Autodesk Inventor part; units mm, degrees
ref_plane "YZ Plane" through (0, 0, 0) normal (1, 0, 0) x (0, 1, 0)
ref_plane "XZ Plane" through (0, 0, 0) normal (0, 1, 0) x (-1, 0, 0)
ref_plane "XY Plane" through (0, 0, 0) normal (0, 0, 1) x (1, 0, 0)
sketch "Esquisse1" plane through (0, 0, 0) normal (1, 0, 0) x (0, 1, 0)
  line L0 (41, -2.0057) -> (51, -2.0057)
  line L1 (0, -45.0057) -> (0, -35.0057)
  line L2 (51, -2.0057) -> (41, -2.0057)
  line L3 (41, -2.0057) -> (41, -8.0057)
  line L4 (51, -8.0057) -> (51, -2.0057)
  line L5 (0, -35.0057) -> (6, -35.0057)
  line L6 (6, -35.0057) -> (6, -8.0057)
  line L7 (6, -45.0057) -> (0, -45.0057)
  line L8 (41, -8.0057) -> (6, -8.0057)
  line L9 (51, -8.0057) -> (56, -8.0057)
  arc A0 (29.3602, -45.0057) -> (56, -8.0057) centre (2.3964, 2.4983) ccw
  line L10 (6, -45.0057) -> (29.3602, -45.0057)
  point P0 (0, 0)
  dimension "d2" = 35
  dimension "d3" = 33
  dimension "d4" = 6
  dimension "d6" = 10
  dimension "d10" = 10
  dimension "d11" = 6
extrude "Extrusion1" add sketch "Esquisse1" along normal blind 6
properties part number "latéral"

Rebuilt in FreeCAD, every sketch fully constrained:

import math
import FreeCAD as App
import Part
import Sketcher
from FreeCAD import Vector
Q = App.Units.Quantity

doc = App.newDocument("Part")
params = doc.addObject("Spreadsheet::Sheet", "Params")
for row, (alias, value) in enumerate([
    ("sketch1_width", "10 mm"),
    ("sketch1_width2", "35 mm"),
    ("sketch1_width3", "6 mm"),
    ("sketch1_width4", "5 mm"),
    ("pad1_length", "6 mm"),
], start=1):
    params.set(f"A{row}", alias)
    params.set(f"B{row}", "=" + value)
    params.setAlias(f"B{row}", alias)

body = doc.addObject("PartDesign::Body", "Body")

# Sketch on YZ plane
sketch1 = body.newObject("Sketcher::SketchObject", "Sketch")
sketch1.AttachmentSupport = (doc.getObject("YZ_Plane"), [""])
sketch1.MapMode = "FlatFace"
sketch1.addGeometry(Part.LineSegment(Vector(51, -2, 0), Vector(41, -2, 0)), False)
sketch1.addGeometry(Part.LineSegment(Vector(41, -2, 0), Vector(41, -8, 0)), False)
sketch1.addGeometry(Part.LineSegment(Vector(41, -8, 0), Vector(6, -8, 0)), False)
sketch1.addGeometry(Part.LineSegment(Vector(6, -8, 0), Vector(6, -35, 0)), False)
sketch1.addGeometry(Part.LineSegment(Vector(6, -35, 0), Vector(0, -35, 0)), False)
sketch1.addGeometry(Part.LineSegment(Vector(0, -35, 0), Vector(0, -45, 0)), False)
sketch1.addGeometry(Part.LineSegment(Vector(0, -45, 0), Vector(29, -45, 0)), False)
sketch1.addGeometry(Part.ArcOfCircle(Part.Circle(Vector(2, 2, 0), Vector(0, 0, 1), 55), math.radians(-60), math.radians(-11)), False)
sketch1.addGeometry(Part.LineSegment(Vector(56, -8, 0), Vector(51, -8, 0)), False)
sketch1.addGeometry(Part.LineSegment(Vector(51, -8, 0), Vector(51, -2, 0)), False)
sketch1.addConstraint(Sketcher.Constraint("Coincident", 0, 2, 1, 1))
sketch1.addConstraint(Sketcher.Constraint("Coincident", 1, 2, 2, 1))
sketch1.addConstraint(Sketcher.Constraint("Coincident", 2, 2, 3, 1))
sketch1.addConstraint(Sketcher.Constraint("Coincident", 3, 2, 4, 1))
sketch1.addConstraint(Sketcher.Constraint("Coincident", 4, 2, 5, 1))
sketch1.addConstraint(Sketcher.Constraint("Coincident", 5, 2, 6, 1))
sketch1.addConstraint(Sketcher.Constraint("Coincident", 6, 2, 7, 1))
sketch1.addConstraint(Sketcher.Constraint("Coincident", 7, 2, 8, 1))
sketch1.addConstraint(Sketcher.Constraint("Coincident", 8, 2, 9, 1))
sketch1.addConstraint(Sketcher.Constraint("Coincident", 9, 2, 0, 1))
sketch1.addConstraint(Sketcher.Constraint("Horizontal", 0))
sketch1.addConstraint(Sketcher.Constraint("Vertical", 1))
sketch1.addConstraint(Sketcher.Constraint("Horizontal", 2))
sketch1.addConstraint(Sketcher.Constraint("Vertical", 3))
sketch1.addConstraint(Sketcher.Constraint("Horizontal", 4))
sketch1.addConstraint(Sketcher.Constraint("Vertical", 5))
sketch1.addConstraint(Sketcher.Constraint("Horizontal", 6))
sketch1.addConstraint(Sketcher.Constraint("Horizontal", 8))
sketch1.addConstraint(Sketcher.Constraint("Vertical", 9))
sketch1.addConstraint(Sketcher.Constraint("PointOnObject", 4, 2, -2))
sketch1.addConstraint(Sketcher.Constraint("Horizontal", 2, 2, 7, 2))
sketch1.addConstraint(Sketcher.Constraint("Equal", 4, 1))
sketch1.addConstraint(Sketcher.Constraint("Equal", 0, 5))
sketch1.addConstraint(Sketcher.Constraint("DistanceX", 0, 2, 0, 1, Q("10 mm")))
sketch1.addConstraint(Sketcher.Constraint("DistanceX", 2, 2, 2, 1, Q("35 mm")))
sketch1.addConstraint(Sketcher.Constraint("DistanceX", 4, 2, 4, 1, Q("6 mm")))
sketch1.addConstraint(Sketcher.Constraint("DistanceY", 3, 2, 0, 2, Q("33 mm")))
sketch1.addConstraint(Sketcher.Constraint("DistanceX", 8, 2, 8, 1, Q("5 mm")))
sketch1.addConstraint(Sketcher.Constraint("Radius", 7, Q("54.623 mm")))
sketch1.addConstraint(Sketcher.Constraint("DistanceX", 6, 1, 6, 2, Q("29.3602 mm")))
sketch1.addConstraint(Sketcher.Constraint("DistanceY", -1, 1, 7, 3, Q("2.4983 mm")))
sketch1.setExpression("Constraints[23]", "Params.sketch1_width")
sketch1.setExpression("Constraints[24]", "Params.sketch1_width2")
sketch1.setExpression("Constraints[25]", "Params.sketch1_width3")
sketch1.setExpression("Constraints[27]", "Params.sketch1_width4")
pad1 = body.newObject("PartDesign::Pad", "Pad")
pad1.Profile = sketch1
pad1.setExpression("Length", "Params.pad1_length")

doc.recompute()
